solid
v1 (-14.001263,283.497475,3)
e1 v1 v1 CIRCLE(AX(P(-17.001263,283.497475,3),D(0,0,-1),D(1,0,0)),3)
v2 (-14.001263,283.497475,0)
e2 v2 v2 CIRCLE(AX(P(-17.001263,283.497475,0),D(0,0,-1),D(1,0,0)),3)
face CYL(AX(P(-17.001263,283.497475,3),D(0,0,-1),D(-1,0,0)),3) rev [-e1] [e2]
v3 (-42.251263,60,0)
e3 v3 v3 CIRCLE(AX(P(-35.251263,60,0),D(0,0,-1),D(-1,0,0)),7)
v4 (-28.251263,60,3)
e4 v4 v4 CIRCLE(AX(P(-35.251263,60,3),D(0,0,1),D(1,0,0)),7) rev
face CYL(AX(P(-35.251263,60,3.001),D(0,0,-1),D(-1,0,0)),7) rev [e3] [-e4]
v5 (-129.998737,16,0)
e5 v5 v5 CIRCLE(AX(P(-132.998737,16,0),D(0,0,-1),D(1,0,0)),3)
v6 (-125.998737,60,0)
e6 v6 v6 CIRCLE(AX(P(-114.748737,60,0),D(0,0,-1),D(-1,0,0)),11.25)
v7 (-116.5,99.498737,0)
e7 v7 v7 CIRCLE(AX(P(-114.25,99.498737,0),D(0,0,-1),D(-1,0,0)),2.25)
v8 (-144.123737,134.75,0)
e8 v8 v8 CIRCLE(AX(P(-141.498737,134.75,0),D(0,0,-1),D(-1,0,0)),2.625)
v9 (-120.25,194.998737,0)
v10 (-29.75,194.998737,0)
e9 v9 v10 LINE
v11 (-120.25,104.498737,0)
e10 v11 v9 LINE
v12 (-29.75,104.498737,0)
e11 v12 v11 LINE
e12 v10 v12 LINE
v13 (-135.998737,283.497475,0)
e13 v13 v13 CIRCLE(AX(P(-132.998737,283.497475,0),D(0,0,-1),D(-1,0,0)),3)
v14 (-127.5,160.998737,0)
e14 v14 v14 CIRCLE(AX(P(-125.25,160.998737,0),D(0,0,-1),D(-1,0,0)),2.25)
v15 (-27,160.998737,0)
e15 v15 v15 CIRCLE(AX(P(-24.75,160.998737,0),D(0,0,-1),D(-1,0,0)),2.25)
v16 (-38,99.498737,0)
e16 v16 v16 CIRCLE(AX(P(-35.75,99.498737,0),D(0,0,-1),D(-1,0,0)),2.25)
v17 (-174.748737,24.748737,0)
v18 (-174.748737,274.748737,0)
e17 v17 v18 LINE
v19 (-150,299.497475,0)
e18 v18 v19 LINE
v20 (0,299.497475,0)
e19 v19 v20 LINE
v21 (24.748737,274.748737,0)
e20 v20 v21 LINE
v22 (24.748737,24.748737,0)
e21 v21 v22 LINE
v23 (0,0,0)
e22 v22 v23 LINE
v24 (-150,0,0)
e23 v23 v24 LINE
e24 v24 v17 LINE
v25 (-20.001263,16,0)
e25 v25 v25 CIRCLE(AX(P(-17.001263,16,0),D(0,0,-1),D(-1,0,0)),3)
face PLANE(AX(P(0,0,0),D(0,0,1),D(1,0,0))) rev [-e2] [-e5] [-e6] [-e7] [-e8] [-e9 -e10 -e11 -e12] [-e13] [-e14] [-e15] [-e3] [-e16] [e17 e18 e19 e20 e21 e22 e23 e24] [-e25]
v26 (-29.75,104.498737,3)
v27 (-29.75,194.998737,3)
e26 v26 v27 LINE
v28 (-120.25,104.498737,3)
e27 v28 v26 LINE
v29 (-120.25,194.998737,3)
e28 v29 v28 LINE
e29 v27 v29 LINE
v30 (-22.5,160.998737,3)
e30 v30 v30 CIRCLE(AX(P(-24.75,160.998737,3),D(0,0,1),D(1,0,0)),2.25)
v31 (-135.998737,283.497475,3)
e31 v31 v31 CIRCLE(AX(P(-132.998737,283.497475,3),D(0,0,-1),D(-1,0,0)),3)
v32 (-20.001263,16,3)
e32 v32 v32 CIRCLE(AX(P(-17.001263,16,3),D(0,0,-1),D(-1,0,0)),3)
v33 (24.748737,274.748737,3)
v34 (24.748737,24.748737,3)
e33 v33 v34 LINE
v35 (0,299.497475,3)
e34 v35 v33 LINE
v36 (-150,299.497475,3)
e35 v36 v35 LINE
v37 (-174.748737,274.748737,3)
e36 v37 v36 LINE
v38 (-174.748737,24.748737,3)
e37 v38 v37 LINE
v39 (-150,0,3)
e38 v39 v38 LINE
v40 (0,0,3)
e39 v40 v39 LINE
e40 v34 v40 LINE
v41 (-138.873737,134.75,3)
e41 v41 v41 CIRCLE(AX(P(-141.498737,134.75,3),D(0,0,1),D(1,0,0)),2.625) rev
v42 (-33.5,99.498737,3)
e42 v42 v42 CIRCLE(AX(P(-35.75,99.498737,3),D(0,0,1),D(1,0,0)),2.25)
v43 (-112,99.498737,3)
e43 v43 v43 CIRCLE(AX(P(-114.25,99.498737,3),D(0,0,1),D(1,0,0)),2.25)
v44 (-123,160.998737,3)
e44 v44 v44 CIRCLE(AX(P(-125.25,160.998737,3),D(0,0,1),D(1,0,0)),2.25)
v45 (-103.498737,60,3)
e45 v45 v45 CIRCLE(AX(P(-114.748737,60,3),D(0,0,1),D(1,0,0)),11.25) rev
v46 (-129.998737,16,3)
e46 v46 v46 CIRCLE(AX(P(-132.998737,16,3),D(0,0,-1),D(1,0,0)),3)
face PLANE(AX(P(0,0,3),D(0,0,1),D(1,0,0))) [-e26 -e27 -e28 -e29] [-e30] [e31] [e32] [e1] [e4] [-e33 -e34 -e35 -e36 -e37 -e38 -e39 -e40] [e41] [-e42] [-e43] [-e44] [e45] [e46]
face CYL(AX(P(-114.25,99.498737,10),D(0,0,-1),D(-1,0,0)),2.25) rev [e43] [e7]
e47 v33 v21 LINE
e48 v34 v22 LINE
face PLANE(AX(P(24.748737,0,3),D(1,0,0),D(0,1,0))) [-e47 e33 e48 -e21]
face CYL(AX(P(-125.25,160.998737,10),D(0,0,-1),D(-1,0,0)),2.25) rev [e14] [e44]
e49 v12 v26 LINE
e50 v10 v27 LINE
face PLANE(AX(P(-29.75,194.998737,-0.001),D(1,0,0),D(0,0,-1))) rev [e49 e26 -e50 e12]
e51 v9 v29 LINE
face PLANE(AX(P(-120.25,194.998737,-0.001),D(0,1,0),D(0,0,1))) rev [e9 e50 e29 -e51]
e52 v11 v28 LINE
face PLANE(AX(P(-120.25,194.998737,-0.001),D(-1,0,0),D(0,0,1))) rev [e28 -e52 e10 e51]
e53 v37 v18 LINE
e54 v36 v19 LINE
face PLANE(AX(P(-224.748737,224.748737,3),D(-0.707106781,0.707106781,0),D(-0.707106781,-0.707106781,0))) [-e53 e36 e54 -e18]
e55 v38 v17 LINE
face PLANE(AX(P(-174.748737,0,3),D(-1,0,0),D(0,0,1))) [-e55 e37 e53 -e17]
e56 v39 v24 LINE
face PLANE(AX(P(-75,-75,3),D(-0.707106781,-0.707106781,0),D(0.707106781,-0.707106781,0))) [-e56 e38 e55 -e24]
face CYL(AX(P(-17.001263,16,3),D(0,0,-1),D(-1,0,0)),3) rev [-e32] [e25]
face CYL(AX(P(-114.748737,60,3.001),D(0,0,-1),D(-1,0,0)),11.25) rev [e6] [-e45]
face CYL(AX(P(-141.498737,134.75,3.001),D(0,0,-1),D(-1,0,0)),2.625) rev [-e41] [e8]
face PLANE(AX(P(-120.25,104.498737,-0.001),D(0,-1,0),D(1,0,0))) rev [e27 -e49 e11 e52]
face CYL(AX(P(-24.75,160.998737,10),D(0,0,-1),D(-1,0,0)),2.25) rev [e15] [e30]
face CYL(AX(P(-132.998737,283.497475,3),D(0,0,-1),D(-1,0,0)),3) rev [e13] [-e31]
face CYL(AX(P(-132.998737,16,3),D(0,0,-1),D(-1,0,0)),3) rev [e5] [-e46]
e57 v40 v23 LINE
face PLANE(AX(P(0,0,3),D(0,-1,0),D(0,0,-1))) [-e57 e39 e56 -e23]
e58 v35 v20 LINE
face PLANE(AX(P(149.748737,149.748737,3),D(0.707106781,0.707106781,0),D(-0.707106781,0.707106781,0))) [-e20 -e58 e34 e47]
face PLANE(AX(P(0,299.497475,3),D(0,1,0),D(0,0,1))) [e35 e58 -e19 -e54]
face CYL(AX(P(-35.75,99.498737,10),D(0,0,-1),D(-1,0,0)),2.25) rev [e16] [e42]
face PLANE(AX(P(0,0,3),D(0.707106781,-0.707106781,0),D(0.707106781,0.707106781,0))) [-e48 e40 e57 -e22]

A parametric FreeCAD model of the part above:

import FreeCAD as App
import Part
import Sketcher

doc = App.newDocument("Part")
params = doc.addObject("Spreadsheet::Sheet", "Params")
for row, (alias, value) in enumerate([
    ("sketch1_width", "150 mm"),
    ("sketch1_height", "250 mm"),
    ("sketch1_length", "35 mm"),
    ("pad1_length", "3 mm"),
    ("sketch2_diameter", "6 mm"),
    ("sketch3_diameter", "22.5 mm"),
    ("sketch4_diameter", "14 mm"),
    ("sketch5_diameter", "5.25 mm"),
    ("sketch6_width", "90.5 mm"),
    ("sketch7_diameter", "4.5 mm"),
    ("pocket6_length", "10 mm"),
], start=1):
    params.set(f"A{row}", alias)
    params.set(f"B{row}", "=" + value)
    params.setAlias(f"B{row}", alias)

body = doc.addObject("PartDesign::Body", "Body")

sketch1 = body.newObject("Sketcher::SketchObject", "Sketch")
sketch1.AttachmentSupport = (doc.getObject("XY_Plane"), [""])
sketch1.MapMode = "FlatFace"
sketch1.addGeometry(Part.LineSegment(App.Vector(0, 0, 0), App.Vector(24.748737, 24.748737, 0)), False)
sketch1.addGeometry(Part.LineSegment(App.Vector(24.748737, 24.748737, 0), App.Vector(24.748737, 274.748737, 0)), False)
sketch1.addGeometry(Part.LineSegment(App.Vector(24.748737, 274.748737, 0), App.Vector(0, 299.497475, 0)), False)
sketch1.addGeometry(Part.LineSegment(App.Vector(0, 299.497475, 0), App.Vector(-150, 299.497475, 0)), False)
sketch1.addGeometry(Part.LineSegment(App.Vector(-150, 299.497475, 0), App.Vector(-174.748737, 274.748737, 0)), False)
sketch1.addGeometry(Part.LineSegment(App.Vector(-174.748737, 274.748737, 0), App.Vector(-174.748737, 24.748737, 0)), False)
sketch1.addGeometry(Part.LineSegment(App.Vector(-174.748737, 24.748737, 0), App.Vector(-150, 0, 0)), False)
sketch1.addGeometry(Part.LineSegment(App.Vector(-150, 0, 0), App.Vector(0, 0, 0)), False)
sketch1.addConstraint(Sketcher.Constraint("Coincident", 0, 2, 1, 1))
sketch1.addConstraint(Sketcher.Constraint("Coincident", 1, 2, 2, 1))
sketch1.addConstraint(Sketcher.Constraint("Coincident", 2, 2, 3, 1))
sketch1.addConstraint(Sketcher.Constraint("Coincident", 3, 2, 4, 1))
sketch1.addConstraint(Sketcher.Constraint("Coincident", 4, 2, 5, 1))
sketch1.addConstraint(Sketcher.Constraint("Coincident", 5, 2, 6, 1))
sketch1.addConstraint(Sketcher.Constraint("Coincident", 6, 2, 7, 1))
sketch1.addConstraint(Sketcher.Constraint("Coincident", 7, 2, 0, 1))
sketch1.addConstraint(Sketcher.Constraint("Vertical", 1))
sketch1.addConstraint(Sketcher.Constraint("Horizontal", 3))
sketch1.addConstraint(Sketcher.Constraint("Vertical", 5))
sketch1.addConstraint(Sketcher.Constraint("Horizontal", 7))
sketch1.addConstraint(Sketcher.Constraint("Coincident", 7, 2, -1, 1))
sketch1.addConstraint(Sketcher.Constraint("PointOnObject", 2, 2, -2))
sketch1.addConstraint(Sketcher.Constraint("Perpendicular", 0, 2))
sketch1.addConstraint(Sketcher.Constraint("Perpendicular", 2, 4))
sketch1.addConstraint(Sketcher.Constraint("Perpendicular", 4, 6))
sketch1.addConstraint(Sketcher.Constraint("Horizontal", 1, 2, 4, 2))
sketch1.addConstraint(Sketcher.Constraint("Horizontal", 0, 2, 5, 2))
sketch1.addConstraint(Sketcher.Constraint("Vertical", 3, 2, 6, 2))
sketch1.addConstraint(Sketcher.Constraint("DistanceX", 3, 2, 3, 1, 150.0))
sketch1.addConstraint(Sketcher.Constraint("DistanceY", 1, 1, 1, 2, 250.0))
sketch1.addConstraint(Sketcher.Constraint("Distance", 0, 35.0))
sketch1.setExpression("Constraints[20]", "Params.sketch1_width")
sketch1.setExpression("Constraints[21]", "Params.sketch1_height")
sketch1.setExpression("Constraints[22]", "Params.sketch1_length")
pad1 = body.newObject("PartDesign::Pad", "Pad")
pad1.Profile = sketch1
pad1.setExpression("Length", "Params.pad1_length")

sketch2 = body.newObject("Sketcher::SketchObject", "Sketch001")
sketch2.AttachmentSupport = (doc.getObject("XY_Plane"), [""])
sketch2.MapMode = "FlatFace"
sketch2.addGeometry(Part.Circle(App.Vector(-132.998737, 283.497475, 0), App.Vector(0, 0, 1), 3), False)
sketch2.addGeometry(Part.Circle(App.Vector(-132.998737, 16, 0), App.Vector(0, 0, 1), 3), False)
sketch2.addGeometry(Part.Circle(App.Vector(-17.001263, 16, 0), App.Vector(0, 0, 1), 3), False)
sketch2.addGeometry(Part.Circle(App.Vector(-17.001263, 283.497475, 0), App.Vector(0, 0, 1), 3), False)
sketch2.addConstraint(Sketcher.Constraint("Equal", 0, 1))
sketch2.addConstraint(Sketcher.Constraint("Equal", 1, 2))
sketch2.addConstraint(Sketcher.Constraint("Equal", 2, 3))
sketch2.addConstraint(Sketcher.Constraint("Horizontal", 1, 3, 2, 3))
sketch2.addConstraint(Sketcher.Constraint("Horizontal", 0, 3, 3, 3))
sketch2.addConstraint(Sketcher.Constraint("Vertical", 0, 3, 1, 3))
sketch2.addConstraint(Sketcher.Constraint("Vertical", 2, 3, 3, 3))
sketch2.addConstraint(Sketcher.Constraint("Diameter", 0, 6.0))
sketch2.addConstraint(Sketcher.Constraint("DistanceY", -1, 1, 1, 3, 16.0))
sketch2.addConstraint(Sketcher.Constraint("DistanceX", 0, 3, -1, 1, 132.998737))
sketch2.addConstraint(Sketcher.Constraint("DistanceY", -1, 1, 0, 3, 283.497475))
sketch2.addConstraint(Sketcher.Constraint("DistanceX", 2, 3, -1, 1, 17.001263))
sketch2.setExpression("Constraints[7]", "Params.sketch2_diameter")
pocket1 = body.newObject("PartDesign::Pocket", "Pocket")
pocket1.Profile = sketch2
pocket1.Type = "ThroughAll"
pocket1.Reversed = True

sketch3 = body.newObject("Sketcher::SketchObject", "Sketch002")
sketch3.AttachmentSupport = (doc.getObject("XY_Plane"), [""])
sketch3.MapMode = "FlatFace"
sketch3.addGeometry(Part.Circle(App.Vector(-114.748737, 60, 0), App.Vector(0, 0, 1), 11.25), False)
sketch3.addConstraint(Sketcher.Constraint("Diameter", 0, 22.5))
sketch3.addConstraint(Sketcher.Constraint("DistanceY", -1, 1, 0, 3, 60.0))
sketch3.addConstraint(Sketcher.Constraint("DistanceX", 0, 3, -1, 1, 114.748737))
sketch3.setExpression("Constraints[0]", "Params.sketch3_diameter")
pocket2 = body.newObject("PartDesign::Pocket", "Pocket001")
pocket2.Profile = sketch3
pocket2.Type = "UpToFirst"
pocket2.Reversed = True

sketch4 = body.newObject("Sketcher::SketchObject", "Sketch003")
sketch4.AttachmentSupport = (doc.getObject("XY_Plane"), [""])
sketch4.MapMode = "FlatFace"
sketch4.addGeometry(Part.Circle(App.Vector(-35.251263, 60, 0), App.Vector(0, 0, 1), 7), False)
sketch4.addConstraint(Sketcher.Constraint("Diameter", 0, 14.0))
sketch4.addConstraint(Sketcher.Constraint("DistanceY", -1, 1, 0, 3, 60.0))
sketch4.addConstraint(Sketcher.Constraint("DistanceX", 0, 3, -1, 1, 35.251263))
sketch4.setExpression("Constraints[0]", "Params.sketch4_diameter")
pocket3 = body.newObject("PartDesign::Pocket", "Pocket002")
pocket3.Profile = sketch4
pocket3.Type = "UpToFirst"
pocket3.Reversed = True

sketch5 = body.newObject("Sketcher::SketchObject", "Sketch004")
sketch5.AttachmentSupport = (doc.getObject("XY_Plane"), [""])
sketch5.MapMode = "FlatFace"
sketch5.addGeometry(Part.Circle(App.Vector(-141.498737, 134.75, 0), App.Vector(0, 0, 1), 2.625), False)
sketch5.addConstraint(Sketcher.Constraint("Diameter", 0, 5.25))
sketch5.addConstraint(Sketcher.Constraint("DistanceY", -1, 1, 0, 3, 134.75))
sketch5.addConstraint(Sketcher.Constraint("DistanceX", 0, 3, -1, 1, 141.498737))
sketch5.setExpression("Constraints[0]", "Params.sketch5_diameter")
pocket4 = body.newObject("PartDesign::Pocket", "Pocket003")
pocket4.Profile = sketch5
pocket4.Type = "UpToFirst"
pocket4.Reversed = True

sketch6 = body.newObject("Sketcher::SketchObject", "Sketch005")
sketch6.AttachmentSupport = (doc.getObject("XY_Plane"), [""])
sketch6.MapMode = "FlatFace"
sketch6.AttachmentOffset = App.Placement(App.Vector(0, 0, 3), App.Rotation())
sketch6.addGeometry(Part.LineSegment(App.Vector(-120.25, 194.998737, 0), App.Vector(-120.25, 104.498737, 0)), False)
sketch6.addGeometry(Part.LineSegment(App.Vector(-120.25, 104.498737, 0), App.Vector(-29.75, 104.498737, 0)), False)
sketch6.addGeometry(Part.LineSegment(App.Vector(-29.75, 104.498737, 0), App.Vector(-29.75, 194.998737, 0)), False)
sketch6.addGeometry(Part.LineSegment(App.Vector(-29.75, 194.998737, 0), App.Vector(-120.25, 194.998737, 0)), False)
sketch6.addConstraint(Sketcher.Constraint("Coincident", 0, 2, 1, 1))
sketch6.addConstraint(Sketcher.Constraint("Coincident", 1, 2, 2, 1))
sketch6.addConstraint(Sketcher.Constraint("Coincident", 2, 2, 3, 1))
sketch6.addConstraint(Sketcher.Constraint("Coincident", 3, 2, 0, 1))
sketch6.addConstraint(Sketcher.Constraint("Vertical", 0))
sketch6.addConstraint(Sketcher.Constraint("Horizontal", 1))
sketch6.addConstraint(Sketcher.Constraint("Vertical", 2))
sketch6.addConstraint(Sketcher.Constraint("Horizontal", 3))
sketch6.addConstraint(Sketcher.Constraint("Equal", 3, 0))
sketch6.addConstraint(Sketcher.Constraint("DistanceX", 1, 1, 1, 2, 90.5))
sketch6.addConstraint(Sketcher.Constraint("DistanceX", 0, 2, -1, 1, 120.25))
sketch6.addConstraint(Sketcher.Constraint("DistanceY", -1, 1, 0, 2, 104.498737))
sketch6.setExpression("Constraints[9]", "Params.sketch6_width")
pocket5 = body.newObject("PartDesign::Pocket", "Pocket004")
pocket5.Profile = sketch6
pocket5.Type = "UpToFirst"

sketch7 = body.newObject("Sketcher::SketchObject", "Sketch006")
sketch7.AttachmentSupport = (doc.getObject("XY_Plane"), [""])
sketch7.MapMode = "FlatFace"
sketch7.addGeometry(Part.Circle(App.Vector(-125.25, 160.998737, 0), App.Vector(0, 0, 1), 2.25), False)
sketch7.addGeometry(Part.Circle(App.Vector(-35.75, 99.498737, 0), App.Vector(0, 0, 1), 2.25), False)
sketch7.addGeometry(Part.Circle(App.Vector(-114.25, 99.498737, 0), App.Vector(0, 0, 1), 2.25), False)
sketch7.addGeometry(Part.Circle(App.Vector(-24.75, 160.998737, 0), App.Vector(0, 0, 1), 2.25), False)
sketch7.addConstraint(Sketcher.Constraint("Equal", 0, 1))
sketch7.addConstraint(Sketcher.Constraint("Equal", 1, 2))
sketch7.addConstraint(Sketcher.Constraint("Equal", 2, 3))
sketch7.addConstraint(Sketcher.Constraint("Horizontal", 1, 3, 2, 3))
sketch7.addConstraint(Sketcher.Constraint("Horizontal", 0, 3, 3, 3))
sketch7.addConstraint(Sketcher.Constraint("Diameter", 0, 4.5))
sketch7.addConstraint(Sketcher.Constraint("DistanceX", 0, 3, 2, 3, 11.0))
sketch7.addConstraint(Sketcher.Constraint("DistanceX", 1, 3, 3, 3, 11.0))
sketch7.addConstraint(Sketcher.Constraint("DistanceX", 0, 3, 1, 3, 89.5))
sketch7.addConstraint(Sketcher.Constraint("DistanceY", 1, 3, 0, 3, 61.5))
sketch7.addConstraint(Sketcher.Constraint("DistanceX", 0, 3, -1, 1, 125.25))
sketch7.addConstraint(Sketcher.Constraint("DistanceY", -1, 1, 0, 3, 160.998737))
sketch7.setExpression("Constraints[5]", "Params.sketch7_diameter")
pocket6 = body.newObject("PartDesign::Pocket", "Pocket005")
pocket6.Profile = sketch7
pocket6.setExpression("Length", "Params.pocket6_length")
pocket6.Reversed = True

doc.recompute()
